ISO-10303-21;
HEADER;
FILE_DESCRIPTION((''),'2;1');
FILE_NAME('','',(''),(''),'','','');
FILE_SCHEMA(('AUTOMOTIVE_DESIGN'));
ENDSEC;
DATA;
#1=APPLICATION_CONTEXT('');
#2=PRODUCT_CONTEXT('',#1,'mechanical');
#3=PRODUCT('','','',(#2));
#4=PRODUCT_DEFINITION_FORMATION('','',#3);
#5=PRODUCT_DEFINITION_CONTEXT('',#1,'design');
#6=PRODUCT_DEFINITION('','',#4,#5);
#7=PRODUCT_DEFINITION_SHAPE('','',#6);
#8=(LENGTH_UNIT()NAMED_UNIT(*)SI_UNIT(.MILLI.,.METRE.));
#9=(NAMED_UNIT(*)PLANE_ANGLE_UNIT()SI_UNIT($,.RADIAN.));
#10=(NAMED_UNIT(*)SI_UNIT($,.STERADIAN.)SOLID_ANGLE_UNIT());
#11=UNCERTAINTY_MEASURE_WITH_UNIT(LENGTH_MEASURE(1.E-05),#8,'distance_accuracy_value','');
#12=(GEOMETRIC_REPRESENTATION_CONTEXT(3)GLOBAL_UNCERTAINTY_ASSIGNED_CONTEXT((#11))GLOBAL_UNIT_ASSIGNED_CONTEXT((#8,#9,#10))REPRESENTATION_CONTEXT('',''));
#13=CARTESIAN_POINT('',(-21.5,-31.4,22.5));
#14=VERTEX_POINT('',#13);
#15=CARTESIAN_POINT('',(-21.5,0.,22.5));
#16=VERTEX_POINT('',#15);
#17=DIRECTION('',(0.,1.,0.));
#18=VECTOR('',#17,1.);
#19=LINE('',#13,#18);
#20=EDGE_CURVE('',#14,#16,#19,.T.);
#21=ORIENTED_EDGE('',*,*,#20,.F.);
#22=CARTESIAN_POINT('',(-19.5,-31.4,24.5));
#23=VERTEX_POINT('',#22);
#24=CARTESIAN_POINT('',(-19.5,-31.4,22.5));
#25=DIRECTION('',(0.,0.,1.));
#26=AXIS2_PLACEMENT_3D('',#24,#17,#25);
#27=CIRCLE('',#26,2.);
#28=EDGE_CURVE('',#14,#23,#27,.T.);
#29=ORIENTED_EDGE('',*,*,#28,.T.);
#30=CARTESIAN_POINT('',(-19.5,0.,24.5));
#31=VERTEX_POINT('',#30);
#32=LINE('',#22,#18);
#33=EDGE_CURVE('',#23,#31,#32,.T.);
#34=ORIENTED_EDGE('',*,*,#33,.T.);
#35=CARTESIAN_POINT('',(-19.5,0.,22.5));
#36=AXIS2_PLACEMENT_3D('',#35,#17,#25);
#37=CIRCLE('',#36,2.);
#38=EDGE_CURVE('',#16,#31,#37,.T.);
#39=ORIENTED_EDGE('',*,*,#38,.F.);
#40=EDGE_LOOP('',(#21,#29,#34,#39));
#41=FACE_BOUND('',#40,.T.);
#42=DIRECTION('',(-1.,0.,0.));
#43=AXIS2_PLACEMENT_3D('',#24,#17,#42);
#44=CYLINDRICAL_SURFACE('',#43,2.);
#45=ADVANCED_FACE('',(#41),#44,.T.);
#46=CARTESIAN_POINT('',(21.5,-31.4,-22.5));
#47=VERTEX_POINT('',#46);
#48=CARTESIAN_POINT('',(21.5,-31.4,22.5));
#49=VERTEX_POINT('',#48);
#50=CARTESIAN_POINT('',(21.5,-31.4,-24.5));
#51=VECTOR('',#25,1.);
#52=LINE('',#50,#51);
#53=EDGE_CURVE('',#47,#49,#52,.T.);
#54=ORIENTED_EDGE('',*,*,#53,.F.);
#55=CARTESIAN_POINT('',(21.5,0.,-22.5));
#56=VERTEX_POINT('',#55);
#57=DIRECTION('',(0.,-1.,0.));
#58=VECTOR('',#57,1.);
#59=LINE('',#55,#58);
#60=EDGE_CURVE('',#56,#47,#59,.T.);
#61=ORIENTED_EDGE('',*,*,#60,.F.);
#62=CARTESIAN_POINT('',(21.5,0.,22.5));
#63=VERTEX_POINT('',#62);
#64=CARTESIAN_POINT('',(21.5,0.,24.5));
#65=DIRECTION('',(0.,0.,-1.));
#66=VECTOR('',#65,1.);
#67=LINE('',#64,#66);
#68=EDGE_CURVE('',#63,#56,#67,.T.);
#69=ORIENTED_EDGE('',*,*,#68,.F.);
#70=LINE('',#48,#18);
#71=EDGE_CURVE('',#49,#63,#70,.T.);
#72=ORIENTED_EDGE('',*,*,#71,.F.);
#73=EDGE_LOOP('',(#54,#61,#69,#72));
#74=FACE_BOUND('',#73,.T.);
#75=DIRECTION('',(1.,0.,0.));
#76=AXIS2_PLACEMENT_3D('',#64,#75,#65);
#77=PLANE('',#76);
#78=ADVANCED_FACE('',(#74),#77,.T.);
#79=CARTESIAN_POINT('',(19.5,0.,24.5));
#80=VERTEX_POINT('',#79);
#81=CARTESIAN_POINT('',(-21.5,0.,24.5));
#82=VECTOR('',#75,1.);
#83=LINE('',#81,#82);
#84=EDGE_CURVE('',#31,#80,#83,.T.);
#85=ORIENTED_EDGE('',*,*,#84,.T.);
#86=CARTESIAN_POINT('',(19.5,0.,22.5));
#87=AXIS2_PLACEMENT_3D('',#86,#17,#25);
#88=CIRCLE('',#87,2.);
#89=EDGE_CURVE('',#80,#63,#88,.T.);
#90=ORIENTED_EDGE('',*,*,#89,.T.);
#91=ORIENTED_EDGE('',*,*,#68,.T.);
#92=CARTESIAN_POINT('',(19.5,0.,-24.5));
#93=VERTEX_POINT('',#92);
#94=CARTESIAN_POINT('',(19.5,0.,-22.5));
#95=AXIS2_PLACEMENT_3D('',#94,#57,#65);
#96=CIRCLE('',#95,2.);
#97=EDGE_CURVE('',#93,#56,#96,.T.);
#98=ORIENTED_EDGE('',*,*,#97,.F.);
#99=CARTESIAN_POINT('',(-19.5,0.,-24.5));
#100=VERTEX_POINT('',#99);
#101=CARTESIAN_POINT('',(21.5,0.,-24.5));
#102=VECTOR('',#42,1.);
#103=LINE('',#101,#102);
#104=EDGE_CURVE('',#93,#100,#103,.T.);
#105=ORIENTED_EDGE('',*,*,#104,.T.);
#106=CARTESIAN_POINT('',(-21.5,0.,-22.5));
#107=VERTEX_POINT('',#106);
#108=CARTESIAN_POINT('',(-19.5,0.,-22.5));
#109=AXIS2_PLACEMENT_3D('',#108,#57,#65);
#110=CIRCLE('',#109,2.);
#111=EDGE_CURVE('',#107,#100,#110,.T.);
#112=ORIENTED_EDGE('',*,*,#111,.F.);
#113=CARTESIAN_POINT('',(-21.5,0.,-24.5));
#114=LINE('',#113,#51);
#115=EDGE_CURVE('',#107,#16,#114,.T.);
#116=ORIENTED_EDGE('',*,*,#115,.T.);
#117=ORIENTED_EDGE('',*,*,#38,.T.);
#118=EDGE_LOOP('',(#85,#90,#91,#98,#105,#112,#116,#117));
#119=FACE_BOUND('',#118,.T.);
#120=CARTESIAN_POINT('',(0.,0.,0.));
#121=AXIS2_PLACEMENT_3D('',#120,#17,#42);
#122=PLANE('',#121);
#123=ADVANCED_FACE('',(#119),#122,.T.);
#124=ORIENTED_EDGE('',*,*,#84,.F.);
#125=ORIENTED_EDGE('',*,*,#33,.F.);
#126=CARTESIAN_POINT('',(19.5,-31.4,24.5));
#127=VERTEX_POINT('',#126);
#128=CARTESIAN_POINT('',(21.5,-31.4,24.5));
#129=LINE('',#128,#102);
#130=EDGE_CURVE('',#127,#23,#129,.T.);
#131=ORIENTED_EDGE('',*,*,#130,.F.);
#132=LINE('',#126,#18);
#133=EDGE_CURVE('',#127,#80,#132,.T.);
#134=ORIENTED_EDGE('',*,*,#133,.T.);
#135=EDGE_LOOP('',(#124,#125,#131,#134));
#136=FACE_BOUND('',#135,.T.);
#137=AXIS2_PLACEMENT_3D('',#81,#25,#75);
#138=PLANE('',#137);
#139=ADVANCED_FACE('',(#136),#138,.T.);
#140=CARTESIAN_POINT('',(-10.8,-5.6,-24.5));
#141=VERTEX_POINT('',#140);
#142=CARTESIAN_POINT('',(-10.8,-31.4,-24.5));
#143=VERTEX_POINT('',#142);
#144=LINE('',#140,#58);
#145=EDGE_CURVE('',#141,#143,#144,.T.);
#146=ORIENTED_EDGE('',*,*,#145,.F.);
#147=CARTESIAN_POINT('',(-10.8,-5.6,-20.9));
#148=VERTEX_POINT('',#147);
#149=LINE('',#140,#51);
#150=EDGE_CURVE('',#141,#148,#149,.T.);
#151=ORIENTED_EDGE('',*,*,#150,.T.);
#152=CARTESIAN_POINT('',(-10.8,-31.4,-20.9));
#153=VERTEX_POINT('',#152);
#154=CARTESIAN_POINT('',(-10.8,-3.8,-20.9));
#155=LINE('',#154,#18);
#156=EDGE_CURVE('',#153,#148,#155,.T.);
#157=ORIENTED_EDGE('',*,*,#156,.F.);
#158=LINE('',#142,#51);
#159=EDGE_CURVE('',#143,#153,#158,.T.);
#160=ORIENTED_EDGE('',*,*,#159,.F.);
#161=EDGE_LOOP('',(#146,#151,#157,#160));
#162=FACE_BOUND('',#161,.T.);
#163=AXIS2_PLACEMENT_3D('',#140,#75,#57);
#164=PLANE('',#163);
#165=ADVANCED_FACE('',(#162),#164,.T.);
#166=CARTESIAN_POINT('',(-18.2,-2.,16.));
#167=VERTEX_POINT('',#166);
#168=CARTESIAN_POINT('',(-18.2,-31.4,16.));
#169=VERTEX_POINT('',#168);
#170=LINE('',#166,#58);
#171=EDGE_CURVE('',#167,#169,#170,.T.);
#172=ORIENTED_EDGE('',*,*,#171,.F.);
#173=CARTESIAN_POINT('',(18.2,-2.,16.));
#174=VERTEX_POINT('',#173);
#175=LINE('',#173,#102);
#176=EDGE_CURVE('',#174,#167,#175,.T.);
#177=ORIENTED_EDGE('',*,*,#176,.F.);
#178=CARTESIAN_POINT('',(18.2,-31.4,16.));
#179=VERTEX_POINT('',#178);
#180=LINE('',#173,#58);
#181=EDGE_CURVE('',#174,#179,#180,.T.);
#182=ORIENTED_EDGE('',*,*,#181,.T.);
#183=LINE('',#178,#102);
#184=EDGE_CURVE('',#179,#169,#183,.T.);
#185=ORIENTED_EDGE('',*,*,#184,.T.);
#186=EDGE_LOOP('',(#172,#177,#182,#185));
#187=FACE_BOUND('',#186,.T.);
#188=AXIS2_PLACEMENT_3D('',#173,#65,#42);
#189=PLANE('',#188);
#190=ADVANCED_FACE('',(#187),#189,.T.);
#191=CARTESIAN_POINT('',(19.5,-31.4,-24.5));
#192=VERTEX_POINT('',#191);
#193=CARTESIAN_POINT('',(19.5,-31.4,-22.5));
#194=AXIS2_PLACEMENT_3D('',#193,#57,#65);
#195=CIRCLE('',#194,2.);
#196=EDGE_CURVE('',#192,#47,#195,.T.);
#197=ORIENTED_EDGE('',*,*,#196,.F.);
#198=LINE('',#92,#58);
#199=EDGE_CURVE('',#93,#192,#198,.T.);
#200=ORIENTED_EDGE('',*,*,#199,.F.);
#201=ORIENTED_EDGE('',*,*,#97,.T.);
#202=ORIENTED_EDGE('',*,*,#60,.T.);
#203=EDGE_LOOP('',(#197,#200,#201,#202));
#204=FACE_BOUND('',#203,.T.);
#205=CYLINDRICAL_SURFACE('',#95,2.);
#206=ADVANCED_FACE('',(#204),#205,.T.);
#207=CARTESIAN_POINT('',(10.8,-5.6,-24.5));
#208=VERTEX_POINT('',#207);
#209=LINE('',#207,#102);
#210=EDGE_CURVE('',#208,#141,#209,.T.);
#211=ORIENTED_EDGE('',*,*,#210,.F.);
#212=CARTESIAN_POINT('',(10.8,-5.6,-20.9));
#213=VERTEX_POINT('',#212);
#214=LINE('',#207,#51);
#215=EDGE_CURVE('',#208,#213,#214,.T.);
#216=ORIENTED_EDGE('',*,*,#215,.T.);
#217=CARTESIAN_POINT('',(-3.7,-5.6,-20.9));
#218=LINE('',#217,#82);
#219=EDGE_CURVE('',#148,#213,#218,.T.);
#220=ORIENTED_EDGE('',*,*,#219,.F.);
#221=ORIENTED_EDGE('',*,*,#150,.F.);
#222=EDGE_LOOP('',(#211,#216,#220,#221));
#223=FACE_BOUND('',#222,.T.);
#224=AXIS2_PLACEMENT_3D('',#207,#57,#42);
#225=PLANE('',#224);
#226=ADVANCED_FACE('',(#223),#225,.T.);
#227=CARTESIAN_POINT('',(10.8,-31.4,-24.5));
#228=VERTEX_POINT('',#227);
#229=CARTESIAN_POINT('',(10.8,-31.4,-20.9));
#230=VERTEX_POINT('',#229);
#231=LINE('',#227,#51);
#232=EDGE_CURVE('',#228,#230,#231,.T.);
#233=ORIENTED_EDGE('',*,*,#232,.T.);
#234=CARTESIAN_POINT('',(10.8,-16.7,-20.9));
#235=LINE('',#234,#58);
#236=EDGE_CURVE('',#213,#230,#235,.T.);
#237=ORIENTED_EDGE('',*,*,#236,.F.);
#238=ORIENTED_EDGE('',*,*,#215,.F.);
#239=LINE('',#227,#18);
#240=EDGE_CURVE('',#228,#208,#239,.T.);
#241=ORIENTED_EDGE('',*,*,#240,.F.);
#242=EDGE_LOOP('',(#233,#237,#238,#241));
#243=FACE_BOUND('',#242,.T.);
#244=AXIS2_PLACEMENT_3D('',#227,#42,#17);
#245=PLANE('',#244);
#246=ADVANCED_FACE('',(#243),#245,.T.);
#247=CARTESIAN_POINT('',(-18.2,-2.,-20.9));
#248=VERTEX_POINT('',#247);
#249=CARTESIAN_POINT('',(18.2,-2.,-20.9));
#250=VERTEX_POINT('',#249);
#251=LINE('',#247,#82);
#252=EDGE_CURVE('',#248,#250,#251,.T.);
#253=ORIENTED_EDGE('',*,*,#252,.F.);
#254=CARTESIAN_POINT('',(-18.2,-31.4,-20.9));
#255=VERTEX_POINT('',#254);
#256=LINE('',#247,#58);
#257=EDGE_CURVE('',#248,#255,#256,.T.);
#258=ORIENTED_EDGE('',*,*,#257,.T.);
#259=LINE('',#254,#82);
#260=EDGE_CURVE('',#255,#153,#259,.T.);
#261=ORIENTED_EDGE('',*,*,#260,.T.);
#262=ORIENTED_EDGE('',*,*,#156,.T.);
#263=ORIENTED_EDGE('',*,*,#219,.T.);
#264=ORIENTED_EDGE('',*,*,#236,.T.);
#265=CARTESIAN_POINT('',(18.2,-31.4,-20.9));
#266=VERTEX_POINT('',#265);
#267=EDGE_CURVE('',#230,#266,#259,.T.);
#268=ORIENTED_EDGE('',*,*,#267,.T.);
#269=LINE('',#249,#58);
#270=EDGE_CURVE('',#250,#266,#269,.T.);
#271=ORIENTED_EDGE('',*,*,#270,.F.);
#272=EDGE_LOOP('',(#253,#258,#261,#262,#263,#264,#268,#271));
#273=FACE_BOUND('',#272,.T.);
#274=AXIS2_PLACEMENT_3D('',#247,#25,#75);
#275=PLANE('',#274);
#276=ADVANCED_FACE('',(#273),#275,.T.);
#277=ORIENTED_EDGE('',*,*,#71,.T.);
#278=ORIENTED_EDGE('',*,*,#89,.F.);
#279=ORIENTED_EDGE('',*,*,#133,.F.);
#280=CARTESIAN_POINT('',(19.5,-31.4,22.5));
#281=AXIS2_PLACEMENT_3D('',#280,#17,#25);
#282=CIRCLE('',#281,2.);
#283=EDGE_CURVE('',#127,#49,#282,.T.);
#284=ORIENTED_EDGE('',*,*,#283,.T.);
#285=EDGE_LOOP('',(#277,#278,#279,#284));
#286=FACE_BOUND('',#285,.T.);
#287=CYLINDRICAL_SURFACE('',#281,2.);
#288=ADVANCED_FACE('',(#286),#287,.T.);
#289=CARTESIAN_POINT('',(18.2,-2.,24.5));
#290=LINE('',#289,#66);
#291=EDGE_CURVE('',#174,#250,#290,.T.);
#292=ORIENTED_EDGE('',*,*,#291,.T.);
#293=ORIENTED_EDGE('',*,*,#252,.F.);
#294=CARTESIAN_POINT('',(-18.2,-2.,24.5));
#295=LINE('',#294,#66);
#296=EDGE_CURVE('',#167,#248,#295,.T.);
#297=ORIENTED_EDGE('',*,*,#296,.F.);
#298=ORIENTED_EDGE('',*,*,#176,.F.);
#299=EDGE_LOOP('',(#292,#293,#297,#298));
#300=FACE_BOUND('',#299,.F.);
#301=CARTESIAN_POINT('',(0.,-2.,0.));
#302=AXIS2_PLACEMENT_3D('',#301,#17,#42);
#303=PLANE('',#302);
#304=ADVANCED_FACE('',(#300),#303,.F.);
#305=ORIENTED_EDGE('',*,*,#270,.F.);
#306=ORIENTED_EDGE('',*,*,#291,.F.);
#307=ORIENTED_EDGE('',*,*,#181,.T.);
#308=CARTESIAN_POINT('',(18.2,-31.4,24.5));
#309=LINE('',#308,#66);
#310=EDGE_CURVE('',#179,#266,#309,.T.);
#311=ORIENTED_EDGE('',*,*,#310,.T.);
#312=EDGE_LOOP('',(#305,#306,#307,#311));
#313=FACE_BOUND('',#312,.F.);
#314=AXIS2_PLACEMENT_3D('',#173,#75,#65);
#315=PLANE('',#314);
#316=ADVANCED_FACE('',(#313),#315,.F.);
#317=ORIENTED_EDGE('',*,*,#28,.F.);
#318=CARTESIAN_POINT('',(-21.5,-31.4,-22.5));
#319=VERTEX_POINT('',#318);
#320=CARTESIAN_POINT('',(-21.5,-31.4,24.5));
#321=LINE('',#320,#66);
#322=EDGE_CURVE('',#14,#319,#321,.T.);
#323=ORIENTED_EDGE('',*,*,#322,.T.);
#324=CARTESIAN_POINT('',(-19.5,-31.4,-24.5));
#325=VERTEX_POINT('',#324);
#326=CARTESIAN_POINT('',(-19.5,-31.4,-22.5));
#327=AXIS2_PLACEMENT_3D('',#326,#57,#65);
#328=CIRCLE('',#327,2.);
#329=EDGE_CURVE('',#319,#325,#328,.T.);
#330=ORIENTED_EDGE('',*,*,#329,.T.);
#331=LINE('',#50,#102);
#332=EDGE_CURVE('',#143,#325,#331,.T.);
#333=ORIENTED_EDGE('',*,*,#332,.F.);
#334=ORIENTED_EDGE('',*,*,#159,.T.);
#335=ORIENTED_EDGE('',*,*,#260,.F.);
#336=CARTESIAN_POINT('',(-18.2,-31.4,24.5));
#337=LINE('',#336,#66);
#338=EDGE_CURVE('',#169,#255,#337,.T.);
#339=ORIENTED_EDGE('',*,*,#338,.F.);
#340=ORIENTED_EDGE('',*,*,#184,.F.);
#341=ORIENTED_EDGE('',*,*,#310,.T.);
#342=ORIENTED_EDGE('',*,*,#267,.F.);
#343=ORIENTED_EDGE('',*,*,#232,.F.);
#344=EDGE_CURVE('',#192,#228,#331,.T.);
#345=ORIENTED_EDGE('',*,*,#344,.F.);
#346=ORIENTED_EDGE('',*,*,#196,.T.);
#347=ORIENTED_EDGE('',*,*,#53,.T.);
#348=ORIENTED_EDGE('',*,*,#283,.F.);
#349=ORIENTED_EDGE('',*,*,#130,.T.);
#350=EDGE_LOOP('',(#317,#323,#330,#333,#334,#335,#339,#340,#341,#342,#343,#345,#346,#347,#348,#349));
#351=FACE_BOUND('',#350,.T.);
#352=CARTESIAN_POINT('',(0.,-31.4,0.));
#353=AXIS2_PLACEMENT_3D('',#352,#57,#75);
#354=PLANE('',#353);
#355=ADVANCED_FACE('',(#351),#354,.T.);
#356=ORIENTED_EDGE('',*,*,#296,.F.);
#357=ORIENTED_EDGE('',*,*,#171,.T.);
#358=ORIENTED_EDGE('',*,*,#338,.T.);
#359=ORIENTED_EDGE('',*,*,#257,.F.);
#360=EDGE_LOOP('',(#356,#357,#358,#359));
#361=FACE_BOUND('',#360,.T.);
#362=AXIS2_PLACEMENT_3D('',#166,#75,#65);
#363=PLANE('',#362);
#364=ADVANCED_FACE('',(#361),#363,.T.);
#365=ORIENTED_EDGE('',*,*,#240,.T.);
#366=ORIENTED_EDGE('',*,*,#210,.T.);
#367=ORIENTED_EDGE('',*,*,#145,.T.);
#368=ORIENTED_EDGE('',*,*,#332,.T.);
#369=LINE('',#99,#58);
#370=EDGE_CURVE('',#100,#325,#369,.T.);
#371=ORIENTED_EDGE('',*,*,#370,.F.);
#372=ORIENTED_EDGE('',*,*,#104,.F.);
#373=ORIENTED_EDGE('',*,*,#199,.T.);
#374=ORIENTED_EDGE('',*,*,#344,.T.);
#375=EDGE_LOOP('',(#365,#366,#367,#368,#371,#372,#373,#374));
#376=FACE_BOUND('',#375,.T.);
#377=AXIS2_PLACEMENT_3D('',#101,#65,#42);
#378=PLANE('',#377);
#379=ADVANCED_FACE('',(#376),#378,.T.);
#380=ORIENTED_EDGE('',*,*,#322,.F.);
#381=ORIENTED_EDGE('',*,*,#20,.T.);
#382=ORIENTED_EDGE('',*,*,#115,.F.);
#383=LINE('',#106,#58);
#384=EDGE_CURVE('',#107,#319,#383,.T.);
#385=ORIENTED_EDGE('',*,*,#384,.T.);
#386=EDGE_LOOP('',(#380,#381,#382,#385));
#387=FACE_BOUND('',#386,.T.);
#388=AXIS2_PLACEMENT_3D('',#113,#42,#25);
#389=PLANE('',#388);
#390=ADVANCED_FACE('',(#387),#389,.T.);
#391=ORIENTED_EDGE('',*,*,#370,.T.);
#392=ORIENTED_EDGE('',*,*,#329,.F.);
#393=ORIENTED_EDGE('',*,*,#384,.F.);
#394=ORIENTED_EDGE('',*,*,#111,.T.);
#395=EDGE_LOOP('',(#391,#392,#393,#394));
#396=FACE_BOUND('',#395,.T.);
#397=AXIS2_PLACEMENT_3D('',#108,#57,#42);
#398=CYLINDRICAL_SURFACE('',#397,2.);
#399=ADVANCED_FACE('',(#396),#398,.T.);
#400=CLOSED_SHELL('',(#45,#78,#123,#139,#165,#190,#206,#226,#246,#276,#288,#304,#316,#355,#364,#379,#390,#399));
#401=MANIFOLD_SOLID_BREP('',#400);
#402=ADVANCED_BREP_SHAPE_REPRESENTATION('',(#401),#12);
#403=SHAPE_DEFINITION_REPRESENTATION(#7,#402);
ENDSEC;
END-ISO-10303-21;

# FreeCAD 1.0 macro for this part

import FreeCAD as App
import Part
import Sketcher

V = App.Vector


def edges_at(feature, points):
    """Names of the edges that pass closest to the given points."""
    edges = feature.Shape.Edges
    near = lambda p: min(range(len(edges)), key=lambda i: edges[i].distToShape(Part.Vertex(*p))[0])
    return sorted({f"Edge{near(p) + 1}" for p in points})

doc = App.newDocument("Part")
params = doc.addObject("Spreadsheet::Sheet", "Params")
for row, (alias, value) in enumerate([
    ("sketch1_width", "43 mm"),
    ("sketch1_height", "49 mm"),
    ("pad1_length", "2 mm"),
    ("sketch2_width", "43 mm"),
    ("sketch2_height", "49 mm"),
    ("pad2_length", "29.4 mm"),
    ("sketch3_width", "21.6 mm"),
    ("sketch3_height", "25.8 mm"),
    ("pocket1_length", "10 mm"),
    ("fillet_radius", "2 mm"),
], start=1):
    params.set(f"A{row}", alias)
    params.set(f"B{row}", "=" + value)
    params.setAlias(f"B{row}", alias)

body = doc.addObject("PartDesign::Body", "Body")

# Sketch on XZ plane
sketch1 = doc.addObject("Sketcher::SketchObject", "Sketch")
body.addObject(sketch1)
sketch1.AttachmentSupport = (doc.XZ_Plane, [""])
sketch1.MapMode = "FlatFace"
sketch1.addGeometry(Part.LineSegment(V(-22, -24, 0), V(-22, 24, 0)), False)
sketch1.addGeometry(Part.LineSegment(V(-22, 24, 0), V(22, 24, 0)), False)
sketch1.addGeometry(Part.LineSegment(V(22, 24, 0), V(22, -24, 0)), False)
sketch1.addGeometry(Part.LineSegment(V(22, -24, 0), V(-22, -24, 0)), False)
sketch1.addConstraint(Sketcher.Constraint("Coincident", 0, 2, 1, 1))
sketch1.addConstraint(Sketcher.Constraint("Coincident", 1, 2, 2, 1))
sketch1.addConstraint(Sketcher.Constraint("Coincident", 2, 2, 3, 1))
sketch1.addConstraint(Sketcher.Constraint("Coincident", 3, 2, 0, 1))
sketch1.addConstraint(Sketcher.Constraint("Vertical", 0))
sketch1.addConstraint(Sketcher.Constraint("Horizontal", 1))
sketch1.addConstraint(Sketcher.Constraint("Vertical", 2))
sketch1.addConstraint(Sketcher.Constraint("Horizontal", 3))
sketch1.addConstraint(Sketcher.Constraint("Symmetric", 0, 2, 2, 2, -1, 1))
sketch1.addConstraint(Sketcher.Constraint("DistanceX", 1, 1, 1, 2, 43.0))
sketch1.addConstraint(Sketcher.Constraint("DistanceY", 0, 1, 0, 2, 49.0))
sketch1.setExpression("Constraints[9]", "Params.sketch1_width")
sketch1.setExpression("Constraints[10]", "Params.sketch1_height")
pad1 = doc.addObject("PartDesign::Pad", "Pad")
body.addObject(pad1)
pad1.Profile = sketch1
pad1.setExpression("Length", "Params.pad1_length")

# Sketch on XZ plane
sketch2 = doc.addObject("Sketcher::SketchObject", "Sketch001")
body.addObject(sketch2)
sketch2.AttachmentSupport = (doc.XZ_Plane, [""])
sketch2.MapMode = "FlatFace"
sketch2.AttachmentOffset = App.Placement(V(0, 0, 2), App.Rotation())
sketch2.addGeometry(Part.LineSegment(V(22, -24, 0), V(22, 24, 0)), False)
sketch2.addGeometry(Part.LineSegment(V(22, 24, 0), V(-22, 24, 0)), False)
sketch2.addGeometry(Part.LineSegment(V(-22, 24, 0), V(-22, -24, 0)), False)
sketch2.addGeometry(Part.LineSegment(V(-22, -24, 0), V(22, -24, 0)), False)
sketch2.addGeometry(Part.LineSegment(V(18, 16, 0), V(18, -21, 0)), False)
sketch2.addGeometry(Part.LineSegment(V(18, -21, 0), V(-18, -21, 0)), False)
sketch2.addGeometry(Part.LineSegment(V(-18, -21, 0), V(-18, 16, 0)), False)
sketch2.addGeometry(Part.LineSegment(V(-18, 16, 0), V(18, 16, 0)), False)
sketch2.addConstraint(Sketcher.Constraint("Coincident", 0, 2, 1, 1))
sketch2.addConstraint(Sketcher.Constraint("Coincident", 1, 2, 2, 1))
sketch2.addConstraint(Sketcher.Constraint("Coincident", 2, 2, 3, 1))
sketch2.addConstraint(Sketcher.Constraint("Coincident", 3, 2, 0, 1))
sketch2.addConstraint(Sketcher.Constraint("Coincident", 4, 2, 5, 1))
sketch2.addConstraint(Sketcher.Constraint("Coincident", 5, 2, 6, 1))
sketch2.addConstraint(Sketcher.Constraint("Coincident", 6, 2, 7, 1))
sketch2.addConstraint(Sketcher.Constraint("Coincident", 7, 2, 4, 1))
sketch2.addConstraint(Sketcher.Constraint("Vertical", 0))
sketch2.addConstraint(Sketcher.Constraint("Horizontal", 1))
sketch2.addConstraint(Sketcher.Constraint("Vertical", 2))
sketch2.addConstraint(Sketcher.Constraint("Horizontal", 3))
sketch2.addConstraint(Sketcher.Constraint("Vertical", 4))
sketch2.addConstraint(Sketcher.Constraint("Horizontal", 5))
sketch2.addConstraint(Sketcher.Constraint("Vertical", 6))
sketch2.addConstraint(Sketcher.Constraint("Horizontal", 7))
sketch2.addConstraint(Sketcher.Constraint("Symmetric", 0, 2, 2, 2, -1, 1))
sketch2.addConstraint(Sketcher.Constraint("DistanceX", 4, 2, 3, 2, 3.3))
sketch2.addConstraint(Sketcher.Constraint("DistanceY", 3, 2, 4, 2, 3.6))
sketch2.addConstraint(Sketcher.Constraint("DistanceX", 2, 2, 5, 2, 3.3))
sketch2.addConstraint(Sketcher.Constraint("DistanceY", 6, 2, 1, 2, 8.5))
sketch2.addConstraint(Sketcher.Constraint("DistanceX", 1, 2, 1, 1, 43.0))
sketch2.addConstraint(Sketcher.Constraint("DistanceY", 0, 1, 0, 2, 49.0))
sketch2.setExpression("Constraints[21]", "Params.sketch2_width")
sketch2.setExpression("Constraints[22]", "Params.sketch2_height")
pad2 = doc.addObject("PartDesign::Pad", "Pad001")
body.addObject(pad2)
pad2.Profile = sketch2
pad2.setExpression("Length", "Params.pad2_length")

# Sketch on XY plane
sketch3 = doc.addObject("Sketcher::SketchObject", "Sketch002")
body.addObject(sketch3)
sketch3.AttachmentSupport = (doc.XY_Plane, [""])
sketch3.MapMode = "FlatFace"
sketch3.AttachmentOffset = App.Placement(V(0, 0, -24.5), App.Rotation())
sketch3.addGeometry(Part.LineSegment(V(-11, -6, 0), V(-11, -31, 0)), False)
sketch3.addGeometry(Part.LineSegment(V(-11, -31, 0), V(11, -31, 0)), False)
sketch3.addGeometry(Part.LineSegment(V(11, -31, 0), V(11, -6, 0)), False)
sketch3.addGeometry(Part.LineSegment(V(11, -6, 0), V(-11, -6, 0)), False)
sketch3.addConstraint(Sketcher.Constraint("Coincident", 0, 2, 1, 1))
sketch3.addConstraint(Sketcher.Constraint("Coincident", 1, 2, 2, 1))
sketch3.addConstraint(Sketcher.Constraint("Coincident", 2, 2, 3, 1))
sketch3.addConstraint(Sketcher.Constraint("Coincident", 3, 2, 0, 1))
sketch3.addConstraint(Sketcher.Constraint("Vertical", 0))
sketch3.addConstraint(Sketcher.Constraint("Horizontal", 1))
sketch3.addConstraint(Sketcher.Constraint("Vertical", 2))
sketch3.addConstraint(Sketcher.Constraint("Horizontal", 3))
sketch3.addConstraint(Sketcher.Constraint("DistanceX", 1, 1, 1, 2, 21.6))
sketch3.addConstraint(Sketcher.Constraint("DistanceY", 0, 2, 0, 1, 25.8))
sketch3.addConstraint(Sketcher.Constraint("DistanceX", 0, 2, -1, 1, 10.8))
sketch3.addConstraint(Sketcher.Constraint("DistanceY", 0, 2, -1, 1, 31.4))
sketch3.setExpression("Constraints[8]", "Params.sketch3_width")
sketch3.setExpression("Constraints[9]", "Params.sketch3_height")
pocket1 = doc.addObject("PartDesign::Pocket", "Pocket")
body.addObject(pocket1)
pocket1.Profile = sketch3
pocket1.setExpression("Length", "Params.pocket1_length")
pocket1.Reversed = True
doc.recompute()

fillet = doc.addObject("PartDesign::Fillet", "Fillet")
body.addObject(fillet)
fillet.Base = (pocket1, edges_at(pocket1, [
    (21.5, -15.7, 24.5),
    (21.5, -15.7, -24.5),
    (-21.5, -15.7, 24.5),
    (-21.5, -15.7, -24.5),
]))
fillet.setExpression("Radius", "Params.fillet_radius")

doc.recompute()
